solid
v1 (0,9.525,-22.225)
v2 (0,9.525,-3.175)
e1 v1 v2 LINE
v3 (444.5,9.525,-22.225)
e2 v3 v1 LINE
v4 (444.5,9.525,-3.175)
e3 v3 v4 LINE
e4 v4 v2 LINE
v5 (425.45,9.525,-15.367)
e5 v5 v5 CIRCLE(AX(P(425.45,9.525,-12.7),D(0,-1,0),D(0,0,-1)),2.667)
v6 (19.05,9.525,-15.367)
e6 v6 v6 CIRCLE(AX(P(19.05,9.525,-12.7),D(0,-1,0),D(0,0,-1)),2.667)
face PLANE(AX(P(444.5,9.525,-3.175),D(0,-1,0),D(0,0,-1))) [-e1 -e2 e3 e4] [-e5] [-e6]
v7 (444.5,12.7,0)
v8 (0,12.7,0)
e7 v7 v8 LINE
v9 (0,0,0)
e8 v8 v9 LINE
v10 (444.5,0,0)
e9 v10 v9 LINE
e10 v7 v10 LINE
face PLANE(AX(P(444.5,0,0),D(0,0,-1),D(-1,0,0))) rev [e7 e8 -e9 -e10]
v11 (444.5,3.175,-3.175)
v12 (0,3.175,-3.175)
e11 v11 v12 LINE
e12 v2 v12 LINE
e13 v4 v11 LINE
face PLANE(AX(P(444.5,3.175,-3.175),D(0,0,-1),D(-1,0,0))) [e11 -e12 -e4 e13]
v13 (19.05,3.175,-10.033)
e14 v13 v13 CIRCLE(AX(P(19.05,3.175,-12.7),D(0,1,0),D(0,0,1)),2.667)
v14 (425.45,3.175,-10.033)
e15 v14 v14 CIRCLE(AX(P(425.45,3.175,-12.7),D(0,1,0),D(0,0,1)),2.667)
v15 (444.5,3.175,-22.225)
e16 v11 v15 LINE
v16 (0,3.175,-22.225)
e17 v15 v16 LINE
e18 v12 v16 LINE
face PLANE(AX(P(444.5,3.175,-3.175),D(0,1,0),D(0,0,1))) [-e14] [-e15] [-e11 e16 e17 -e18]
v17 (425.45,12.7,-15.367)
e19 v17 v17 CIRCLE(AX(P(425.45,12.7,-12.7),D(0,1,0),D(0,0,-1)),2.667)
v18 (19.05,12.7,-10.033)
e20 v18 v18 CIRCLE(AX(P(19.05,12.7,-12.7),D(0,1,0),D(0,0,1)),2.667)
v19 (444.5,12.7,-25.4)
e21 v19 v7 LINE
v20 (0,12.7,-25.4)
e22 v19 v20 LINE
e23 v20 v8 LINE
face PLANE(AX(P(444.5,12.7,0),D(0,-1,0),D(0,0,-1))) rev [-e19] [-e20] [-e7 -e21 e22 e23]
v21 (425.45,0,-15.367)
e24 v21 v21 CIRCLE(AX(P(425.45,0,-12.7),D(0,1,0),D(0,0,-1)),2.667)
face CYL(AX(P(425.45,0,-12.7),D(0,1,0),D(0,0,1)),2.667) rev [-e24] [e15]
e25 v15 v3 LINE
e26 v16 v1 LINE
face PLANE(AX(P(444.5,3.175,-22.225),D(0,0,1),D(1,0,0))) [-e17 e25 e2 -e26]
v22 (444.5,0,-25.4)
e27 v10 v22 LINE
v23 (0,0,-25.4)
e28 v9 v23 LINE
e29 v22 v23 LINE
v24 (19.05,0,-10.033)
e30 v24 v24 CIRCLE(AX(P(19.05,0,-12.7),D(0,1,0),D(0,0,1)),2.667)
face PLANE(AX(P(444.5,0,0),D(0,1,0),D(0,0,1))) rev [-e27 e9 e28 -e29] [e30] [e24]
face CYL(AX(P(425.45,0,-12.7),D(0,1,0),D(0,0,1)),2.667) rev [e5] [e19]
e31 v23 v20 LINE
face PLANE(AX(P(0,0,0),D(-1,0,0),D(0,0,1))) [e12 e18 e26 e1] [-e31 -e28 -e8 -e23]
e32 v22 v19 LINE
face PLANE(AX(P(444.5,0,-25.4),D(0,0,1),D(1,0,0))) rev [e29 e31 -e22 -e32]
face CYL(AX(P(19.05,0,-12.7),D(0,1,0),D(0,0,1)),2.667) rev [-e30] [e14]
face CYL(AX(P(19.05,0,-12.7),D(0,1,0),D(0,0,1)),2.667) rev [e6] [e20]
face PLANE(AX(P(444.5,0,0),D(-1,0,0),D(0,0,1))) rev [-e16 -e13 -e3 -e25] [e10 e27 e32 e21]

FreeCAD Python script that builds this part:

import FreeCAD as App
import Part
import Sketcher

V = App.Vector
Q = App.Units.Quantity


def add_polygon(sketch, points):
    """Adds a closed chain of lines whose ends are joined by coincident constraints."""
    first, n = sketch.GeometryCount, len(points)
    for a, b in zip(points, points[1:] + points[:1]):
        sketch.addGeometry(Part.LineSegment(App.Vector(*a, 0), App.Vector(*b, 0)), False)
    for i in range(n):
        sketch.addConstraint(Sketcher.Constraint("Coincident", first + i, 2, first + (i + 1) % n, 1))

doc = App.newDocument("Part")
body = doc.addObject("PartDesign::Body", "Body")

# Sketch on YZ plane
sketch1 = body.newObject("Sketcher::SketchObject", "Sketch")
sketch1.AttachmentSupport = (doc.getObject("YZ_Plane"), [""])
sketch1.MapMode = "FlatFace"
add_polygon(sketch1, [(13, 0), (0, 0), (0, -25), (13, -25)])  # lines 0-3
add_polygon(sketch1, [(3, -22), (3, -3), (10, -3), (10, -22)])  # lines 4-7
sketch1.addConstraint(Sketcher.Constraint("Horizontal", 0))
sketch1.addConstraint(Sketcher.Constraint("Vertical", 1))
sketch1.addConstraint(Sketcher.Constraint("Horizontal", 2))
sketch1.addConstraint(Sketcher.Constraint("Vertical", 3))
sketch1.addConstraint(Sketcher.Constraint("Vertical", 4))
sketch1.addConstraint(Sketcher.Constraint("Horizontal", 5))
sketch1.addConstraint(Sketcher.Constraint("Vertical", 6))
sketch1.addConstraint(Sketcher.Constraint("Horizontal", 7))
sketch1.addConstraint(Sketcher.Constraint("Coincident", 0, 2, -1, 1))
sketch1.addConstraint(Sketcher.Constraint("DistanceY", 1, 2, 1, 1, Q("1 in")))
sketch1.addConstraint(Sketcher.Constraint("DistanceX", 0, 2, 0, 1, Q("0.5 in")))
sketch1.addConstraint(Sketcher.Constraint("DistanceX", 5, 1, 5, 2, Q("0.25 in")))
sketch1.addConstraint(Sketcher.Constraint("DistanceY", 4, 1, 4, 2, Q("0.75 in")))
sketch1.addConstraint(Sketcher.Constraint("DistanceX", -1, 1, 4, 2, Q("0.125 in")))
sketch1.addConstraint(Sketcher.Constraint("DistanceY", 4, 2, -1, 1, Q("0.125 in")))
pad1 = body.newObject("PartDesign::Pad", "Pad")
pad1.Profile = sketch1
pad1.Length = Q("17.5 in")

# Sketch on XZ plane
sketch2 = body.newObject("Sketcher::SketchObject", "Sketch001")
sketch2.AttachmentSupport = (doc.getObject("XZ_Plane"), [""])
sketch2.MapMode = "FlatFace"
sketch2.AttachmentOffset = App.Placement(V(0, 0, -0.5 * 25.4), App.Rotation())
sketch2.addGeometry(Part.Circle(V(19.1, -12.7, 0), V(0, 0, 1), 2.7), False)
sketch2.addGeometry(Part.Circle(V(425.4, -12.7, 0), V(0, 0, 1), 2.7), False)
sketch2.addConstraint(Sketcher.Constraint("Equal", 0, 1))
sketch2.addConstraint(Sketcher.Constraint("Horizontal", 0, 3, 1, 3))
sketch2.addConstraint(Sketcher.Constraint("Diameter", 0, Q("0.21 in")))
sketch2.addConstraint(Sketcher.Constraint("DistanceX", 0, 3, 1, 3, Q("16 in")))
sketch2.addConstraint(Sketcher.Constraint("DistanceY", 0, 3, -1, 1, Q("0.5 in")))
sketch2.addConstraint(Sketcher.Constraint("DistanceX", -1, 1, 0, 3, Q("0.75 in")))
pocket1 = body.newObject("PartDesign::Pocket", "Pocket")
pocket1.Profile = sketch2
pocket1.Type = "ThroughAll"
pocket1.Reversed = True

doc.recompute()
